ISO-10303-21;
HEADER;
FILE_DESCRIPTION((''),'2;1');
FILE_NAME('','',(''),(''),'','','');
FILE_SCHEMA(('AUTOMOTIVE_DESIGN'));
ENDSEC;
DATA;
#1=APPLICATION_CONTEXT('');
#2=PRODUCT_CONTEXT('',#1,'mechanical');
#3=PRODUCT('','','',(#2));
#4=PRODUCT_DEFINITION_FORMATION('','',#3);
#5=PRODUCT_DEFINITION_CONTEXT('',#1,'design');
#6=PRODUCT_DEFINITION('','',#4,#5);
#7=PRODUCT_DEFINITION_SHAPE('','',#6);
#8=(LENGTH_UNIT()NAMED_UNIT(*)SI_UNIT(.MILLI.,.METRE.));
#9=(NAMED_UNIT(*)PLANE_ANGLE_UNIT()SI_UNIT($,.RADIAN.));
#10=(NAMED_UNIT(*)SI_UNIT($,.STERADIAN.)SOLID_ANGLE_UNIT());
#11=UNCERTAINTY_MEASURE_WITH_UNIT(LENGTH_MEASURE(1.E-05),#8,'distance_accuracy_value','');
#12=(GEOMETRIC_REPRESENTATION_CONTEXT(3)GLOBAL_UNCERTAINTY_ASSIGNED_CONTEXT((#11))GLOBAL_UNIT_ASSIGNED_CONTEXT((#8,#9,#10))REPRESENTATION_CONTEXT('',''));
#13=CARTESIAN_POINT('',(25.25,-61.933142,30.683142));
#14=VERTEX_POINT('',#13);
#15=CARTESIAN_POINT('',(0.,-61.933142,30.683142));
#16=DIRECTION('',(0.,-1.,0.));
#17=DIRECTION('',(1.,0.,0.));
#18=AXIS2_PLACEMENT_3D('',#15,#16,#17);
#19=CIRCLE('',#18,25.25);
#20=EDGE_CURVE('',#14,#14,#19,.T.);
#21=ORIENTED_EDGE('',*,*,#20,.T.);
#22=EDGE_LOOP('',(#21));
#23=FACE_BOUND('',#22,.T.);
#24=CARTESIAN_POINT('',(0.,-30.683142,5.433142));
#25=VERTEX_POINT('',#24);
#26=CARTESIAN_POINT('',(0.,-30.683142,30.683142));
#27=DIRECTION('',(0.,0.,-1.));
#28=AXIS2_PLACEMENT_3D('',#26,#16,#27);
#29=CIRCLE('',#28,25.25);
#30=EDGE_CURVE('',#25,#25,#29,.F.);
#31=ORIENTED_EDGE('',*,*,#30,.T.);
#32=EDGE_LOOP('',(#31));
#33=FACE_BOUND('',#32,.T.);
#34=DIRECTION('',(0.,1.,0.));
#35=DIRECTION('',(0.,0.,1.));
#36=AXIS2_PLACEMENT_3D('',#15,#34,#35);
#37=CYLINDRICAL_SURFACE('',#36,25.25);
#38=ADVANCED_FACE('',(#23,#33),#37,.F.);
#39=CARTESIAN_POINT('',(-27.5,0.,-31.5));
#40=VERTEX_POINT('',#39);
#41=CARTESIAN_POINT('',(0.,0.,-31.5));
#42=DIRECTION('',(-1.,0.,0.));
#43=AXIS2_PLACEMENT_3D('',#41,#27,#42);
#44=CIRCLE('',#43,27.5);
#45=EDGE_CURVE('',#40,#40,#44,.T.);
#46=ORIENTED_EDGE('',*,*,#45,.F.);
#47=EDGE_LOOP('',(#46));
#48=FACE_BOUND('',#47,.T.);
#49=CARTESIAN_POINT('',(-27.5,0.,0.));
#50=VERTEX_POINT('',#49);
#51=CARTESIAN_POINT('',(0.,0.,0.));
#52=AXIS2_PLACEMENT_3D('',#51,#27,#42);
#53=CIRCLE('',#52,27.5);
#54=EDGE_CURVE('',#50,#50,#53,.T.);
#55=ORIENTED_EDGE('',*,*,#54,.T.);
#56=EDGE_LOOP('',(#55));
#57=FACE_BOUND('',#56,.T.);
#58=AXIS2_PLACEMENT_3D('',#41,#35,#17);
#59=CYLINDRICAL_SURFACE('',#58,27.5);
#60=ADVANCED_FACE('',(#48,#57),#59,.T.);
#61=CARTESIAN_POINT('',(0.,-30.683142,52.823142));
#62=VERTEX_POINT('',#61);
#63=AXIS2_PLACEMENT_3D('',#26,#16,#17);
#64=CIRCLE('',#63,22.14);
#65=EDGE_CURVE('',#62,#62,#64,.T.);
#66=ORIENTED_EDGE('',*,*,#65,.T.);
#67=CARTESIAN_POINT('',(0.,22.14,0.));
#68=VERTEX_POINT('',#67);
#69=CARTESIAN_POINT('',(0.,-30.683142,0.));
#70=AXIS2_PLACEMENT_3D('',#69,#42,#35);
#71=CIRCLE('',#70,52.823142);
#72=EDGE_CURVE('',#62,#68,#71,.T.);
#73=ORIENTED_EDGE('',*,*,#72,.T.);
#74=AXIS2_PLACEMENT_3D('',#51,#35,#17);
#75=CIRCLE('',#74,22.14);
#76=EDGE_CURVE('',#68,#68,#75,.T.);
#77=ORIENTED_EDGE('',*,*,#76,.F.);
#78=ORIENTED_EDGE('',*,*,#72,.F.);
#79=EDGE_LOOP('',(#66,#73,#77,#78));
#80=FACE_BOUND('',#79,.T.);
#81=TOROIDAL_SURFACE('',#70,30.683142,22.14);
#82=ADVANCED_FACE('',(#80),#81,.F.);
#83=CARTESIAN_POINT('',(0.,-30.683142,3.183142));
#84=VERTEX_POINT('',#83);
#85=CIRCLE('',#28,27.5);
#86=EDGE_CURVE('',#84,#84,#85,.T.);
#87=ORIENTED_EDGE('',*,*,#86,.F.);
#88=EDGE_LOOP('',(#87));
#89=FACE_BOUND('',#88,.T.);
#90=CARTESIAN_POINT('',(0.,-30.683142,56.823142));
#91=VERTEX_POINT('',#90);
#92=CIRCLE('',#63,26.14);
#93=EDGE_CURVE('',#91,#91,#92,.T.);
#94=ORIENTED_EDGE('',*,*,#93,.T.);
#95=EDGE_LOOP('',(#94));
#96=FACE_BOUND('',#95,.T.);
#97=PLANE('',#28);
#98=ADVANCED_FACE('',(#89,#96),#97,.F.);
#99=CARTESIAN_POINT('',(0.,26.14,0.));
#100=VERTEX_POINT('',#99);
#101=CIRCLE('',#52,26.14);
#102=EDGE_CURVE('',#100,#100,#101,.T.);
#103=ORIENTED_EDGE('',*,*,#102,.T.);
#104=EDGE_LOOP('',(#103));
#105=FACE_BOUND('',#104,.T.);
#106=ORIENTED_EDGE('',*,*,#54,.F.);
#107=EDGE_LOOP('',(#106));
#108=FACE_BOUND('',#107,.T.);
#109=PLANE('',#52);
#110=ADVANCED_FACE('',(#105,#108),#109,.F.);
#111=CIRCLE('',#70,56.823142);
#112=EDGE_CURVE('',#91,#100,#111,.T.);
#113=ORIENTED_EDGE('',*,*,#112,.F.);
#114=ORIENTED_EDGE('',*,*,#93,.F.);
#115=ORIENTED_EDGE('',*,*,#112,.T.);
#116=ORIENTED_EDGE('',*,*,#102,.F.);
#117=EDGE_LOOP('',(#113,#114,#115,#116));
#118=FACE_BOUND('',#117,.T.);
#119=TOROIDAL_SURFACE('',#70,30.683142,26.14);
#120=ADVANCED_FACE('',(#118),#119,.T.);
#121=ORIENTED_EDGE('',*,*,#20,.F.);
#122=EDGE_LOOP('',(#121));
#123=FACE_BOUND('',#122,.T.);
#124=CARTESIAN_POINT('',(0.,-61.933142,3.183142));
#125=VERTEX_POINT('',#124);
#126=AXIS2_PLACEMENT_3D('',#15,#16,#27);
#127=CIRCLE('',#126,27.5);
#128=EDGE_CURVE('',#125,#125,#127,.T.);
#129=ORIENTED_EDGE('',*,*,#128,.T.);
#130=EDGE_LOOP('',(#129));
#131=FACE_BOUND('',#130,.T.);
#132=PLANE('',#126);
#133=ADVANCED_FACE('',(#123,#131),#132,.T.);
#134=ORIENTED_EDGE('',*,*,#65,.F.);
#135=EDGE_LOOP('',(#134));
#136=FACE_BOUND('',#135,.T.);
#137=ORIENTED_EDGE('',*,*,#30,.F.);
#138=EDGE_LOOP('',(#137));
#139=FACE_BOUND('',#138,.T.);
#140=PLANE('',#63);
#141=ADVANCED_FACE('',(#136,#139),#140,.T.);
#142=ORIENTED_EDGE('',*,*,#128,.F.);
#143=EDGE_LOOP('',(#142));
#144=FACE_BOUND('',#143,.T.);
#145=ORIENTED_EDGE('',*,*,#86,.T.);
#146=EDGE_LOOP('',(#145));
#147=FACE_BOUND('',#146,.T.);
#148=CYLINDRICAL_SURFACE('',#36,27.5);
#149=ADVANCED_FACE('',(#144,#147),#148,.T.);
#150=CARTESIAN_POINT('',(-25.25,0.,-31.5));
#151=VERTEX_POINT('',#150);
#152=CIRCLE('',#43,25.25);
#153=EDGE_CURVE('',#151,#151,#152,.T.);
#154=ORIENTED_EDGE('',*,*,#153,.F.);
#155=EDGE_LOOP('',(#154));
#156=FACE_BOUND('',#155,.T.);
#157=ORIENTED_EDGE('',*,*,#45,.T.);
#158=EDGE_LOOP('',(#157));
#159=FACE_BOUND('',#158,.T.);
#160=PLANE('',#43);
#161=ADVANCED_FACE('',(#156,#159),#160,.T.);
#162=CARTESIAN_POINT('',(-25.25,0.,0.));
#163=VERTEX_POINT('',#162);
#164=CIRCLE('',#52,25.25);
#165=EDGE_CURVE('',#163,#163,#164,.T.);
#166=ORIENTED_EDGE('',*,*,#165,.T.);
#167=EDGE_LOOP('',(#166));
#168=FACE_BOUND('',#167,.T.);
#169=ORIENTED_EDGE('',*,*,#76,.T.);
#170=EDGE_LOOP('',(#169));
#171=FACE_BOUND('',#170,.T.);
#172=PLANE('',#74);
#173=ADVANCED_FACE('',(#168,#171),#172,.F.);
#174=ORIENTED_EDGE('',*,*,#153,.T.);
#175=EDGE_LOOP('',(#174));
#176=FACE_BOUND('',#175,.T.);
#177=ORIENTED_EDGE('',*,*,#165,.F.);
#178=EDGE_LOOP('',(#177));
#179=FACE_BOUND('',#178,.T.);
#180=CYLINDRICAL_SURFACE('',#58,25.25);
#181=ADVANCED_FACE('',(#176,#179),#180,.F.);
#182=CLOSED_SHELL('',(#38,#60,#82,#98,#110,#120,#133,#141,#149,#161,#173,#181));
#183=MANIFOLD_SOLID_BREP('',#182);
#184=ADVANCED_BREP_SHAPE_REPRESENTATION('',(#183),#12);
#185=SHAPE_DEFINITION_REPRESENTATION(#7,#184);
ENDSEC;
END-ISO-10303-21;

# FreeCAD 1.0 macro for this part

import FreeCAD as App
import Part
import Sketcher
from FreeCAD import Vector

doc = App.newDocument("Part")
body = doc.addObject("PartDesign::Body", "Body")

# Sketch on XY plane
sketch1 = body.newObject("Sketcher::SketchObject", "Sketch")
sketch1.AttachmentSupport = (doc.getObject("XY_Plane"), [""])
sketch1.MapMode = "FlatFace"
sketch1.addGeometry([
    Part.Circle(Vector(0, 0, 0), Vector(0, 0, 1), 26),
    Part.Circle(Vector(0, 0, 0), Vector(0, 0, 1), 22),
], False)
sketch1.addGeometry(Part.LineSegment(Vector(0, -31, 0), Vector(10, -31, 0)), True)  # axis
sketch1.addConstraint([
    Sketcher.Constraint("Horizontal", 2),
    Sketcher.Constraint("Coincident", 0, 3, -1, 1),
    Sketcher.Constraint("Coincident", 1, 3, -1, 1),
    Sketcher.Constraint("PointOnObject", 2, 1, -2),
    Sketcher.Constraint("Diameter", 0, 52.28),
    Sketcher.Constraint("Diameter", 1, 44.28),
    Sketcher.Constraint("DistanceX", 2, 1, 2, 2, 10.0),
    Sketcher.Constraint("DistanceY", 2, 1, -1, 1, 30.683142),
])
revolution = body.newObject("PartDesign::Revolution", "Revolution")
revolution.Profile = sketch1
revolution.ReferenceAxis = (sketch1, ["Axis0"])
revolution.Angle = 90

# Sketch on XY plane
sketch2 = body.newObject("Sketcher::SketchObject", "Sketch001")
sketch2.AttachmentSupport = (doc.getObject("XY_Plane"), [""])
sketch2.MapMode = "FlatFace"
sketch2.addGeometry([
    Part.Circle(Vector(0, 0, 0), Vector(0, 0, 1), 28),
    Part.Circle(Vector(0, 0, 0), Vector(0, 0, 1), 25),
], False)
sketch2.addConstraint([
    Sketcher.Constraint("Coincident", 0, 3, -1, 1),
    Sketcher.Constraint("Coincident", 1, 3, -1, 1),
    Sketcher.Constraint("Diameter", 0, 55.0),
    Sketcher.Constraint("Diameter", 1, 50.5),
])
pad1 = body.newObject("PartDesign::Pad", "Pad")
pad1.Profile = sketch2
pad1.Length = 31.5
pad1.Reversed = True

# Sketch on XZ plane
sketch3 = body.newObject("Sketcher::SketchObject", "Sketch002")
sketch3.AttachmentSupport = (doc.getObject("XZ_Plane"), [""])
sketch3.MapMode = "FlatFace"
sketch3.AttachmentOffset = App.Placement(Vector(0, 0, 30.683142), App.Rotation())
sketch3.addGeometry([
    Part.Circle(Vector(0, 31, 0), Vector(0, 0, 1), 28),
    Part.Circle(Vector(0, 31, 0), Vector(0, 0, 1), 25),
], False)
sketch3.addConstraint([
    Sketcher.Constraint("Coincident", 1, 3, 0, 3),
    Sketcher.Constraint("PointOnObject", 0, 3, -2),
    Sketcher.Constraint("Diameter", 0, 55.0),
    Sketcher.Constraint("Diameter", 1, 50.5),
    Sketcher.Constraint("DistanceY", -1, 1, 0, 3, 30.683142),
])
pad2 = body.newObject("PartDesign::Pad", "Pad001")
pad2.Profile = sketch3
pad2.Length = 31.25

doc.recompute()
